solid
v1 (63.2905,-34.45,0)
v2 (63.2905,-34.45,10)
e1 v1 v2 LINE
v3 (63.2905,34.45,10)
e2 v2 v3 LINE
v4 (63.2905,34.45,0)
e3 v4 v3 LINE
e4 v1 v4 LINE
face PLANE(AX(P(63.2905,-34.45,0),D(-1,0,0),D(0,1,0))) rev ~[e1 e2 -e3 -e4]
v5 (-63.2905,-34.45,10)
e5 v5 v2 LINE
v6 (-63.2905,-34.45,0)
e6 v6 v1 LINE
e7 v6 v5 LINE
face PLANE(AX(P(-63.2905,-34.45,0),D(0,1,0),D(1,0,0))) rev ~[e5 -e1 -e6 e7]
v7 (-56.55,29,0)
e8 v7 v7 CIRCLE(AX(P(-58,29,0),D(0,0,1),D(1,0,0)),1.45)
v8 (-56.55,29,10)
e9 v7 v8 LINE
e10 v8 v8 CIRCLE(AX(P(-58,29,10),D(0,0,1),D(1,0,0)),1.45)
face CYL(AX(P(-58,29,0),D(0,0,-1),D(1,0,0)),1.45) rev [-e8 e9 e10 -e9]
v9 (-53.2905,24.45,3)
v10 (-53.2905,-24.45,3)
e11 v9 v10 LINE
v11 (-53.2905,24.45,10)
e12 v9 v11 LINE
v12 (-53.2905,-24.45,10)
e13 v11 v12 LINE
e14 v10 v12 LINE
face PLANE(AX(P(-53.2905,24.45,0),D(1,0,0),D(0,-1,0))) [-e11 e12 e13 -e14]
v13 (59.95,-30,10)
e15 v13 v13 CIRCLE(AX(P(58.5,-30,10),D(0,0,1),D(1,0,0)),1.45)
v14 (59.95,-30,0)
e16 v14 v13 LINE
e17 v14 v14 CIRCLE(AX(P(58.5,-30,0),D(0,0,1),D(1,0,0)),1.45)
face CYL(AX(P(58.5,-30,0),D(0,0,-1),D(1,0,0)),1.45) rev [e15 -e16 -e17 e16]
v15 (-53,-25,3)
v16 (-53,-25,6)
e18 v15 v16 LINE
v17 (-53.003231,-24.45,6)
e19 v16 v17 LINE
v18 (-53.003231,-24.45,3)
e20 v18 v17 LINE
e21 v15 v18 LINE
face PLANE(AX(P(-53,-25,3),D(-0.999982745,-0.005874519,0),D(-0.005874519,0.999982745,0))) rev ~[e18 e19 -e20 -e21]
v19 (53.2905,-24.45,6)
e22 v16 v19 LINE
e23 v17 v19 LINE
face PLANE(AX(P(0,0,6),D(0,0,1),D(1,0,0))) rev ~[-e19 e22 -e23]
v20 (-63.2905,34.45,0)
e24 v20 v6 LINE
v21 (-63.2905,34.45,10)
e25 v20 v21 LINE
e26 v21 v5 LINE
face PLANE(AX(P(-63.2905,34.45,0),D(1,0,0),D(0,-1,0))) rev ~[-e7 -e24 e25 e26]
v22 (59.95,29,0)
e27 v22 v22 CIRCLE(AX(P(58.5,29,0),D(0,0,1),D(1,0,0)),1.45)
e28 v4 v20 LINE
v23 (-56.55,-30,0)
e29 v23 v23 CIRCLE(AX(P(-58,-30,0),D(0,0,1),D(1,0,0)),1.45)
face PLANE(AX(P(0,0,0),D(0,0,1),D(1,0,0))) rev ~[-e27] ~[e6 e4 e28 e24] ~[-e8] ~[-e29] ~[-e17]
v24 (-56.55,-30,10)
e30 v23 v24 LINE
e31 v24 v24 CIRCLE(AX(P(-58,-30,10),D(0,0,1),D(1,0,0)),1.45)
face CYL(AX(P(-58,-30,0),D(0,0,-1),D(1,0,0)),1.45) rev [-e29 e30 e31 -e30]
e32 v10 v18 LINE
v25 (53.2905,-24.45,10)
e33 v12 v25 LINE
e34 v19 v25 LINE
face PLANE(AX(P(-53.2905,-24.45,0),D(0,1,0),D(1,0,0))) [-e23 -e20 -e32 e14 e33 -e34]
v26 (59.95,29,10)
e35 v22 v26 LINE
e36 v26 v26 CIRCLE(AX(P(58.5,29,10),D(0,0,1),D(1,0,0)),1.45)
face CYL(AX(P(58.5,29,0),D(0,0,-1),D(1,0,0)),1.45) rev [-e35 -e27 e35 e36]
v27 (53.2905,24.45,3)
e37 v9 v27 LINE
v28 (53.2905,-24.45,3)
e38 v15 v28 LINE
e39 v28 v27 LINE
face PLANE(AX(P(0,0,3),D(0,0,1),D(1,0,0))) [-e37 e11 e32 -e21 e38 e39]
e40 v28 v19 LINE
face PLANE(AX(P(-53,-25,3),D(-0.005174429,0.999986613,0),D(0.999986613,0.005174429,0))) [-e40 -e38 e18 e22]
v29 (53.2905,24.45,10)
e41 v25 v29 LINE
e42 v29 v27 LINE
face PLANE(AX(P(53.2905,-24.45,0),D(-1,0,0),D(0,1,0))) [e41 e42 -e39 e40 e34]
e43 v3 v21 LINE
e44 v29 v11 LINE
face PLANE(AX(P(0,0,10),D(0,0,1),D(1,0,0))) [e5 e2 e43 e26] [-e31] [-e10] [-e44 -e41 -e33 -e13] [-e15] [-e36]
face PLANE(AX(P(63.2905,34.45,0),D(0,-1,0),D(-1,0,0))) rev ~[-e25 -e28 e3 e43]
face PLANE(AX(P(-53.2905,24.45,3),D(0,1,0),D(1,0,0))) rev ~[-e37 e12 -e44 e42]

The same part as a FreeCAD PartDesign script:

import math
import FreeCAD as App
import Part
import Sketcher

doc = App.newDocument("Part")
params = doc.addObject("Spreadsheet::Sheet", "Params")
for row, (alias, value) in enumerate([
    ("sketch1_height", "48.9 mm"),
    ("pad1_length", "3 mm"),
    ("sketch2_diameter", "2.9 mm"),
    ("sketch2_height", "68.9 mm"),
    ("sketch2_height2", "48.9 mm"),
    ("pad2_length", "10 mm"),
    ("sketch3_diameter", "2.9 mm"),
    ("pocket1_length", "14 mm"),
    ("sketch4_diameter", "2.9 mm"),
    ("pocket2_length", "14 mm"),
    ("sketch5_diameter", "2.9 mm"),
    ("pocket3_length", "14 mm"),
    ("sketch6_diameter", "2.9 mm"),
    ("pocket4_length", "14 mm"),
    ("sketch7_width", "13 mm"),
    ("sketch7_radius", "0.5 mm"),
    ("sketch7_height", "48.9 mm"),
    ("pad3_length", "3 mm"),
    ("sketch8_width", "13 mm"),
    ("sketch8_radius", "0.5 mm"),
    ("sketch8_height", "48.9 mm"),
    ("pocket5_length", "3 mm"),
], start=1):
    params.set(f"A{row}", alias)
    params.set(f"B{row}", "=" + value)
    params.setAlias(f"B{row}", alias)

body = doc.addObject("PartDesign::Body", "Body")

sketch1 = doc.addObject("Sketcher::SketchObject", "Sketch")
body.addObject(sketch1)
sketch1.AttachmentSupport = (doc.XY_Plane, [""])
sketch1.MapMode = "FlatFace"
sketch1.addGeometry([
    Part.LineSegment(App.Vector(53, -24, 0), App.Vector(53, 24, 0)),
    Part.LineSegment(App.Vector(53, 24, 0), App.Vector(-53, 24, 0)),
    Part.LineSegment(App.Vector(-53, 24, 0), App.Vector(-53, -24, 0)),
    Part.LineSegment(App.Vector(-53, -24, 0), App.Vector(53, -24, 0)),
], False)
sketch1.addConstraint([
    Sketcher.Constraint("Coincident", 0, 2, 1, 1),
    Sketcher.Constraint("Coincident", 1, 2, 2, 1),
    Sketcher.Constraint("Coincident", 2, 2, 3, 1),
    Sketcher.Constraint("Coincident", 3, 2, 0, 1),
    Sketcher.Constraint("Vertical", 0),
    Sketcher.Constraint("Horizontal", 1),
    Sketcher.Constraint("Vertical", 2),
    Sketcher.Constraint("Horizontal", 3),
    Sketcher.Constraint("Symmetric", 0, 2, 2, 2, -1, 1),
    Sketcher.Constraint("DistanceY", 0, 1, 0, 2, 48.9),
    Sketcher.Constraint("DistanceX", 1, 2, 1, 1, 106.581),
])
sketch1.setExpression("Constraints[9]", "Params.sketch1_height")
pad1 = doc.addObject("PartDesign::Pad", "Pad")
body.addObject(pad1)
pad1.Profile = sketch1
pad1.setExpression("Length", "Params.pad1_length")

sketch2 = doc.addObject("Sketcher::SketchObject", "Sketch001")
body.addObject(sketch2)
sketch2.AttachmentSupport = (doc.XY_Plane, [""])
sketch2.MapMode = "FlatFace"
sketch2.addGeometry([
    Part.LineSegment(App.Vector(-63.3, 34.5, 0), App.Vector(-63.3, -34.5, 0)),
    Part.LineSegment(App.Vector(-63.3, -34.5, 0), App.Vector(63.3, -34.5, 0)),
    Part.LineSegment(App.Vector(63.3, -34.5, 0), App.Vector(63.3, 34.5, 0)),
    Part.LineSegment(App.Vector(63.3, 34.5, 0), App.Vector(-63.3, 34.5, 0)),
    Part.Circle(App.Vector(-58, -30, 0), App.Vector(0, 0, 1), 1.4),
    Part.Circle(App.Vector(58.5, -30, 0), App.Vector(0, 0, 1), 1.4),
    Part.Circle(App.Vector(-58, 29, 0), App.Vector(0, 0, 1), 1.4),
    Part.LineSegment(App.Vector(-53.3, 24.4, 0), App.Vector(53.3, 24.4, 0)),
    Part.LineSegment(App.Vector(53.3, 24.4, 0), App.Vector(53.3, -24.4, 0)),
    Part.LineSegment(App.Vector(53.3, -24.4, 0), App.Vector(-53.3, -24.4, 0)),
    Part.LineSegment(App.Vector(-53.3, -24.4, 0), App.Vector(-53.3, 24.4, 0)),
    Part.Circle(App.Vector(58.5, 29, 0), App.Vector(0, 0, 1), 1.4),
], False)
sketch2.addConstraint([
    Sketcher.Constraint("Coincident", 0, 2, 1, 1),
    Sketcher.Constraint("Coincident", 1, 2, 2, 1),
    Sketcher.Constraint("Coincident", 2, 2, 3, 1),
    Sketcher.Constraint("Coincident", 3, 2, 0, 1),
    Sketcher.Constraint("Coincident", 7, 2, 8, 1),
    Sketcher.Constraint("Coincident", 8, 2, 9, 1),
    Sketcher.Constraint("Coincident", 9, 2, 10, 1),
    Sketcher.Constraint("Coincident", 10, 2, 7, 1),
    Sketcher.Constraint("Vertical", 0),
    Sketcher.Constraint("Horizontal", 1),
    Sketcher.Constraint("Vertical", 2),
    Sketcher.Constraint("Horizontal", 3),
    Sketcher.Constraint("Horizontal", 7),
    Sketcher.Constraint("Vertical", 8),
    Sketcher.Constraint("Horizontal", 9),
    Sketcher.Constraint("Vertical", 10),
    Sketcher.Constraint("Equal", 4, 5),
    Sketcher.Constraint("Equal", 5, 6),
    Sketcher.Constraint("Equal", 6, 11),
    Sketcher.Constraint("Symmetric", 0, 2, 2, 2, -1, 1),
    Sketcher.Constraint("Symmetric", 7, 2, 9, 2, -1, 1),
    Sketcher.Constraint("Horizontal", 4, 3, 5, 3),
    Sketcher.Constraint("Horizontal", 6, 3, 11, 3),
    Sketcher.Constraint("Vertical", 4, 3, 6, 3),
    Sketcher.Constraint("Vertical", 5, 3, 11, 3),
    Sketcher.Constraint("Diameter", 4, 2.9),
    Sketcher.Constraint("DistanceY", 0, 2, 0, 1, 68.9),
    Sketcher.Constraint("DistanceY", 8, 2, 8, 1, 48.9),
    Sketcher.Constraint("DistanceX", 7, 2, 2, 2, 10.0),
    Sketcher.Constraint("DistanceX", 1, 1, 1, 2, 126.581),
    Sketcher.Constraint("DistanceX", 4, 3, -1, 1, 58.0),
    Sketcher.Constraint("DistanceY", 4, 3, -1, 1, 30.0),
    Sketcher.Constraint("DistanceY", -1, 1, 6, 3, 29.0),
    Sketcher.Constraint("DistanceX", -1, 1, 5, 3, 58.5),
])
sketch2.setExpression("Constraints[25]", "Params.sketch2_diameter")
sketch2.setExpression("Constraints[26]", "Params.sketch2_height")
sketch2.setExpression("Constraints[27]", "Params.sketch2_height2")
pad2 = doc.addObject("PartDesign::Pad", "Pad001")
body.addObject(pad2)
pad2.Profile = sketch2
pad2.setExpression("Length", "Params.pad2_length")

sketch3 = doc.addObject("Sketcher::SketchObject", "Sketch002")
body.addObject(sketch3)
sketch3.AttachmentSupport = (doc.XY_Plane, [""])
sketch3.MapMode = "FlatFace"
sketch3.addGeometry(Part.Circle(App.Vector(-58, 29, 0), App.Vector(0, 0, 1), 1.4), False)
sketch3.addConstraint([
    Sketcher.Constraint("Diameter", 0, 2.9),
    Sketcher.Constraint("DistanceX", 0, 3, -1, 1, 58.0),
    Sketcher.Constraint("DistanceY", -1, 1, 0, 3, 29.0),
])
sketch3.setExpression("Constraints[0]", "Params.sketch3_diameter")
pocket1 = doc.addObject("PartDesign::Pocket", "Pocket")
body.addObject(pocket1)
pocket1.Profile = sketch3
pocket1.setExpression("Length", "Params.pocket1_length")
pocket1.Reversed = True

sketch4 = doc.addObject("Sketcher::SketchObject", "Sketch003")
body.addObject(sketch4)
sketch4.AttachmentSupport = (doc.XY_Plane, [""])
sketch4.MapMode = "FlatFace"
sketch4.addGeometry(Part.Circle(App.Vector(-58, -30, 0), App.Vector(0, 0, 1), 1.4), False)
sketch4.addConstraint([
    Sketcher.Constraint("Diameter", 0, 2.9),
    Sketcher.Constraint("DistanceX", 0, 3, -1, 1, 58.0),
    Sketcher.Constraint("DistanceY", 0, 3, -1, 1, 30.0),
])
sketch4.setExpression("Constraints[0]", "Params.sketch4_diameter")
pocket2 = doc.addObject("PartDesign::Pocket", "Pocket001")
body.addObject(pocket2)
pocket2.Profile = sketch4
pocket2.setExpression("Length", "Params.pocket2_length")
pocket2.Reversed = True

sketch5 = doc.addObject("Sketcher::SketchObject", "Sketch004")
body.addObject(sketch5)
sketch5.AttachmentSupport = (doc.XY_Plane, [""])
sketch5.MapMode = "FlatFace"
sketch5.addGeometry(Part.Circle(App.Vector(58.5, -30, 0), App.Vector(0, 0, 1), 1.4), False)
sketch5.addConstraint([
    Sketcher.Constraint("Diameter", 0, 2.9),
    Sketcher.Constraint("DistanceY", 0, 3, -1, 1, 30.0),
    Sketcher.Constraint("DistanceX", -1, 1, 0, 3, 58.5),
])
sketch5.setExpression("Constraints[0]", "Params.sketch5_diameter")
pocket3 = doc.addObject("PartDesign::Pocket", "Pocket002")
body.addObject(pocket3)
pocket3.Profile = sketch5
pocket3.setExpression("Length", "Params.pocket3_length")
pocket3.Reversed = True

sketch6 = doc.addObject("Sketcher::SketchObject", "Sketch005")
body.addObject(sketch6)
sketch6.AttachmentSupport = (doc.XY_Plane, [""])
sketch6.MapMode = "FlatFace"
sketch6.addGeometry(Part.Circle(App.Vector(58.5, 29, 0), App.Vector(0, 0, 1), 1.4), False)
sketch6.addConstraint([
    Sketcher.Constraint("Diameter", 0, 2.9),
    Sketcher.Constraint("DistanceY", -1, 1, 0, 3, 29.0),
    Sketcher.Constraint("DistanceX", -1, 1, 0, 3, 58.5),
])
sketch6.setExpression("Constraints[0]", "Params.sketch6_diameter")
pocket4 = doc.addObject("PartDesign::Pocket", "Pocket003")
body.addObject(pocket4)
pocket4.Profile = sketch6
pocket4.setExpression("Length", "Params.pocket4_length")
pocket4.Reversed = True

sketch7 = doc.addObject("Sketcher::SketchObject", "Sketch006")
body.addObject(sketch7)
sketch7.AttachmentSupport = (doc.XY_Plane, [""])
sketch7.MapMode = "FlatFace"
sketch7.AttachmentOffset = App.Placement(App.Vector(0, 0, 3), App.Rotation())
sketch7.addGeometry([
    Part.LineSegment(App.Vector(-53.29, 24.45, 0), App.Vector(-53, -25, 0)),
    Part.LineSegment(App.Vector(-53, -25, 0), App.Vector(53.29, -24.45, 0)),
    Part.LineSegment(App.Vector(53.29, -24.45, 0), App.Vector(53.29, 24.45, 0)),
    Part.LineSegment(App.Vector(53.29, 24.45, 0), App.Vector(-53.29, 24.45, 0)),
    Part.ArcOfCircle(Part.Circle(App.Vector(-24.26, 6.46, 0), App.Vector(0, 0, 1), 0.5), math.radians(90), math.radians(180)),
    Part.LineSegment(App.Vector(-24.26, 6.96, 0), App.Vector(-11.26, 6.96, 0)),
    Part.ArcOfCircle(Part.Circle(App.Vector(-11.26, 6.46, 0), App.Vector(0, 0, 1), 0.5), math.radians(0), math.radians(90)),
    Part.LineSegment(App.Vector(-10.76, 6.46, 0), App.Vector(-10.76, -6.54, 0)),
    Part.ArcOfCircle(Part.Circle(App.Vector(-11.26, -6.54, 0), App.Vector(0, 0, 1), 0.5), math.radians(-90), math.radians(0)),
    Part.LineSegment(App.Vector(-11.26, -7.04, 0), App.Vector(-24.26, -7.04, 0)),
    Part.ArcOfCircle(Part.Circle(App.Vector(-24.26, -6.54, 0), App.Vector(0, 0, 1), 0.5), math.radians(180), math.radians(270)),
    Part.LineSegment(App.Vector(-24.76, -6.54, 0), App.Vector(-24.76, 6.46, 0)),
    Part.ArcOfCircle(Part.Circle(App.Vector(-5.21, 6.46, 0), App.Vector(0, 0, 1), 0.5), math.radians(90), math.radians(180)),
    Part.LineSegment(App.Vector(-5.21, 6.96, 0), App.Vector(7.79, 6.96, 0)),
    Part.ArcOfCircle(Part.Circle(App.Vector(7.79, 6.46, 0), App.Vector(0, 0, 1), 0.5), math.radians(0), math.radians(90)),
    Part.LineSegment(App.Vector(8.29, 6.46, 0), App.Vector(8.29, -6.54, 0)),
    Part.ArcOfCircle(Part.Circle(App.Vector(7.79, -6.54, 0), App.Vector(0, 0, 1), 0.5), math.radians(-90), math.radians(0)),
    Part.LineSegment(App.Vector(7.79, -7.04, 0), App.Vector(-5.21, -7.04, 0)),
    Part.ArcOfCircle(Part.Circle(App.Vector(-5.21, -6.54, 0), App.Vector(0, 0, 1), 0.5), math.radians(180), math.radians(270)),
    Part.LineSegment(App.Vector(-5.71, -6.54, 0), App.Vector(-5.71, 6.46, 0)),
    Part.ArcOfCircle(Part.Circle(App.Vector(13.84, 6.46, 0), App.Vector(0, 0, 1), 0.5), math.radians(90), math.radians(180)),
    Part.LineSegment(App.Vector(13.84, 6.96, 0), App.Vector(26.84, 6.96, 0)),
    Part.ArcOfCircle(Part.Circle(App.Vector(26.84, 6.46, 0), App.Vector(0, 0, 1), 0.5), math.radians(0), math.radians(90)),
    Part.LineSegment(App.Vector(27.34, 6.46, 0), App.Vector(27.34, -6.54, 0)),
    Part.ArcOfCircle(Part.Circle(App.Vector(26.84, -6.54, 0), App.Vector(0, 0, 1), 0.5), math.radians(-90), math.radians(0)),
    Part.LineSegment(App.Vector(26.84, -7.04, 0), App.Vector(13.84, -7.04, 0)),
    Part.ArcOfCircle(Part.Circle(App.Vector(13.84, -6.54, 0), App.Vector(0, 0, 1), 0.5), math.radians(180), math.radians(270)),
    Part.LineSegment(App.Vector(13.34, -6.54, 0), App.Vector(13.34, 6.46, 0)),
], False)
sketch7.addConstraint([
    Sketcher.Constraint("Coincident", 0, 2, 1, 1),
    Sketcher.Constraint("Coincident", 1, 2, 2, 1),
    Sketcher.Constraint("Coincident", 2, 2, 3, 1),
    Sketcher.Constraint("Coincident", 3, 2, 0, 1),
    Sketcher.Constraint("Tangent", 4, 1, 5, 1),
    Sketcher.Constraint("Tangent", 5, 2, 6, 2),
    Sketcher.Constraint("Tangent", 6, 1, 7, 1),
    Sketcher.Constraint("Tangent", 7, 2, 8, 2),
    Sketcher.Constraint("Tangent", 8, 1, 9, 1),
    Sketcher.Constraint("Tangent", 9, 2, 10, 2),
    Sketcher.Constraint("Tangent", 10, 1, 11, 1),
    Sketcher.Constraint("Tangent", 11, 2, 4, 2),
    Sketcher.Constraint("Tangent", 12, 1, 13, 1),
    Sketcher.Constraint("Tangent", 13, 2, 14, 2),
    Sketcher.Constraint("Tangent", 14, 1, 15, 1),
    Sketcher.Constraint("Tangent", 15, 2, 16, 2),
    Sketcher.Constraint("Tangent", 16, 1, 17, 1),
    Sketcher.Constraint("Tangent", 17, 2, 18, 2),
    Sketcher.Constraint("Tangent", 18, 1, 19, 1),
    Sketcher.Constraint("Tangent", 19, 2, 12, 2),
    Sketcher.Constraint("Tangent", 20, 1, 21, 1),
    Sketcher.Constraint("Tangent", 21, 2, 22, 2),
    Sketcher.Constraint("Tangent", 22, 1, 23, 1),
    Sketcher.Constraint("Tangent", 23, 2, 24, 2),
    Sketcher.Constraint("Tangent", 24, 1, 25, 1),
    Sketcher.Constraint("Tangent", 25, 2, 26, 2),
    Sketcher.Constraint("Tangent", 26, 1, 27, 1),
    Sketcher.Constraint("Tangent", 27, 2, 20, 2),
    Sketcher.Constraint("Vertical", 2),
    Sketcher.Constraint("Horizontal", 3),
    Sketcher.Constraint("Horizontal", 5),
    Sketcher.Constraint("Vertical", 7),
    Sketcher.Constraint("Horizontal", 9),
    Sketcher.Constraint("Vertical", 11),
    Sketcher.Constraint("Horizontal", 13),
    Sketcher.Constraint("Vertical", 15),
    Sketcher.Constraint("Horizontal", 17),
    Sketcher.Constraint("Vertical", 19),
    Sketcher.Constraint("Horizontal", 21),
    Sketcher.Constraint("Vertical", 23),
    Sketcher.Constraint("Horizontal", 25),
    Sketcher.Constraint("Vertical", 27),
    Sketcher.Constraint("Equal", 4, 6),
    Sketcher.Constraint("Equal", 6, 8),
    Sketcher.Constraint("Equal", 8, 10),
    Sketcher.Constraint("Equal", 10, 12),
    Sketcher.Constraint("Equal", 12, 14),
    Sketcher.Constraint("Equal", 14, 16),
    Sketcher.Constraint("Equal", 16, 18),
    Sketcher.Constraint("Equal", 18, 20),
    Sketcher.Constraint("Equal", 20, 22),
    Sketcher.Constraint("Equal", 22, 24),
    Sketcher.Constraint("Equal", 24, 26),
    Sketcher.Constraint("Symmetric", 1, 2, 3, 2, -1, 1),
    Sketcher.Constraint("Horizontal", 6, 3, 12, 3),
    Sketcher.Constraint("Horizontal", 10, 3, 16, 3),
    Sketcher.Constraint("Horizontal", 14, 3, 20, 3),
    Sketcher.Constraint("Horizontal", 18, 3, 24, 3),
    Sketcher.Constraint("Equal", 9, 13),
    Sketcher.Constraint("Equal", 17, 21),
    Sketcher.Constraint("Equal", 25, 7),
    Sketcher.Constraint("DistanceX", 5, 1, 5, 2, 13.0),
    Sketcher.Constraint("Radius", 4, 0.5),
    Sketcher.Constraint("DistanceY", 0, 2, 3, 2, 49.45),
    Sketcher.Constraint("DistanceY", 2, 1, 2, 2, 48.9),
    Sketcher.Constraint("DistanceX", 0, 2, -1, 1, 53.0),
    Sketcher.Constraint("DistanceX", 6, 3, 20, 3, 25.1),
    Sketcher.Constraint("DistanceX", 3, 2, 3, 1, 106.581),
    Sketcher.Constraint("DistanceX", 6, 3, 12, 3, 6.05),
    Sketcher.Constraint("DistanceX", 24, 3, 1, 2, 26.449),
    Sketcher.Constraint("DistanceY", -1, 1, 4, 3, 6.4573),
])
sketch7.setExpression("Constraints[61]", "Params.sketch7_width")
sketch7.setExpression("Constraints[62]", "Params.sketch7_radius")
sketch7.setExpression("Constraints[64]", "Params.sketch7_height")
pad3 = doc.addObject("PartDesign::Pad", "Pad002")
body.addObject(pad3)
pad3.Profile = sketch7
pad3.setExpression("Length", "Params.pad3_length")

sketch8 = doc.addObject("Sketcher::SketchObject", "Sketch007")
body.addObject(sketch8)
sketch8.AttachmentSupport = (doc.XY_Plane, [""])
sketch8.MapMode = "FlatFace"
sketch8.AttachmentOffset = App.Placement(App.Vector(0, 0, 3), App.Rotation())
sketch8.addGeometry([
    Part.LineSegment(App.Vector(-53.29, 24.45, 0), App.Vector(-53, -25, 0)),
    Part.LineSegment(App.Vector(-53, -25, 0), App.Vector(53.29, -24.45, 0)),
    Part.LineSegment(App.Vector(53.29, -24.45, 0), App.Vector(53.29, 24.45, 0)),
    Part.LineSegment(App.Vector(53.29, 24.45, 0), App.Vector(-53.29, 24.45, 0)),
    Part.ArcOfCircle(Part.Circle(App.Vector(-24.26, 6.46, 0), App.Vector(0, 0, 1), 0.5), math.radians(90), math.radians(180)),
    Part.LineSegment(App.Vector(-24.26, 6.96, 0), App.Vector(-11.26, 6.96, 0)),
    Part.ArcOfCircle(Part.Circle(App.Vector(-11.26, 6.46, 0), App.Vector(0, 0, 1), 0.5), math.radians(0), math.radians(90)),
    Part.LineSegment(App.Vector(-10.76, 6.46, 0), App.Vector(-10.76, -6.54, 0)),
    Part.ArcOfCircle(Part.Circle(App.Vector(-11.26, -6.54, 0), App.Vector(0, 0, 1), 0.5), math.radians(-90), math.radians(0)),
    Part.LineSegment(App.Vector(-11.26, -7.04, 0), App.Vector(-24.26, -7.04, 0)),
    Part.ArcOfCircle(Part.Circle(App.Vector(-24.26, -6.54, 0), App.Vector(0, 0, 1), 0.5), math.radians(180), math.radians(270)),
    Part.LineSegment(App.Vector(-24.76, -6.54, 0), App.Vector(-24.76, 6.46, 0)),
    Part.ArcOfCircle(Part.Circle(App.Vector(-5.21, 6.46, 0), App.Vector(0, 0, 1), 0.5), math.radians(90), math.radians(180)),
    Part.LineSegment(App.Vector(-5.21, 6.96, 0), App.Vector(7.79, 6.96, 0)),
    Part.ArcOfCircle(Part.Circle(App.Vector(7.79, 6.46, 0), App.Vector(0, 0, 1), 0.5), math.radians(0), math.radians(90)),
    Part.LineSegment(App.Vector(8.29, 6.46, 0), App.Vector(8.29, -6.54, 0)),
    Part.ArcOfCircle(Part.Circle(App.Vector(7.79, -6.54, 0), App.Vector(0, 0, 1), 0.5), math.radians(-90), math.radians(0)),
    Part.LineSegment(App.Vector(7.79, -7.04, 0), App.Vector(-5.21, -7.04, 0)),
    Part.ArcOfCircle(Part.Circle(App.Vector(-5.21, -6.54, 0), App.Vector(0, 0, 1), 0.5), math.radians(180), math.radians(270)),
    Part.LineSegment(App.Vector(-5.71, -6.54, 0), App.Vector(-5.71, 6.46, 0)),
    Part.ArcOfCircle(Part.Circle(App.Vector(13.84, 6.46, 0), App.Vector(0, 0, 1), 0.5), math.radians(90), math.radians(180)),
    Part.LineSegment(App.Vector(13.84, 6.96, 0), App.Vector(26.84, 6.96, 0)),
    Part.ArcOfCircle(Part.Circle(App.Vector(26.84, 6.46, 0), App.Vector(0, 0, 1), 0.5), math.radians(0), math.radians(90)),
    Part.LineSegment(App.Vector(27.34, 6.46, 0), App.Vector(27.34, -6.54, 0)),
    Part.ArcOfCircle(Part.Circle(App.Vector(26.84, -6.54, 0), App.Vector(0, 0, 1), 0.5), math.radians(-90), math.radians(0)),
    Part.LineSegment(App.Vector(26.84, -7.04, 0), App.Vector(13.84, -7.04, 0)),
    Part.ArcOfCircle(Part.Circle(App.Vector(13.84, -6.54, 0), App.Vector(0, 0, 1), 0.5), math.radians(180), math.radians(270)),
    Part.LineSegment(App.Vector(13.34, -6.54, 0), App.Vector(13.34, 6.46, 0)),
], False)
sketch8.addConstraint([
    Sketcher.Constraint("Coincident", 0, 2, 1, 1),
    Sketcher.Constraint("Coincident", 1, 2, 2, 1),
    Sketcher.Constraint("Coincident", 2, 2, 3, 1),
    Sketcher.Constraint("Coincident", 3, 2, 0, 1),
    Sketcher.Constraint("Tangent", 4, 1, 5, 1),
    Sketcher.Constraint("Tangent", 5, 2, 6, 2),
    Sketcher.Constraint("Tangent", 6, 1, 7, 1),
    Sketcher.Constraint("Tangent", 7, 2, 8, 2),
    Sketcher.Constraint("Tangent", 8, 1, 9, 1),
    Sketcher.Constraint("Tangent", 9, 2, 10, 2),
    Sketcher.Constraint("Tangent", 10, 1, 11, 1),
    Sketcher.Constraint("Tangent", 11, 2, 4, 2),
    Sketcher.Constraint("Tangent", 12, 1, 13, 1),
    Sketcher.Constraint("Tangent", 13, 2, 14, 2),
    Sketcher.Constraint("Tangent", 14, 1, 15, 1),
    Sketcher.Constraint("Tangent", 15, 2, 16, 2),
    Sketcher.Constraint("Tangent", 16, 1, 17, 1),
    Sketcher.Constraint("Tangent", 17, 2, 18, 2),
    Sketcher.Constraint("Tangent", 18, 1, 19, 1),
    Sketcher.Constraint("Tangent", 19, 2, 12, 2),
    Sketcher.Constraint("Tangent", 20, 1, 21, 1),
    Sketcher.Constraint("Tangent", 21, 2, 22, 2),
    Sketcher.Constraint("Tangent", 22, 1, 23, 1),
    Sketcher.Constraint("Tangent", 23, 2, 24, 2),
    Sketcher.Constraint("Tangent", 24, 1, 25, 1),
    Sketcher.Constraint("Tangent", 25, 2, 26, 2),
    Sketcher.Constraint("Tangent", 26, 1, 27, 1),
    Sketcher.Constraint("Tangent", 27, 2, 20, 2),
    Sketcher.Constraint("Vertical", 2),
    Sketcher.Constraint("Horizontal", 3),
    Sketcher.Constraint("Horizontal", 5),
    Sketcher.Constraint("Vertical", 7),
    Sketcher.Constraint("Horizontal", 9),
    Sketcher.Constraint("Vertical", 11),
    Sketcher.Constraint("Horizontal", 13),
    Sketcher.Constraint("Vertical", 15),
    Sketcher.Constraint("Horizontal", 17),
    Sketcher.Constraint("Vertical", 19),
    Sketcher.Constraint("Horizontal", 21),
    Sketcher.Constraint("Vertical", 23),
    Sketcher.Constraint("Horizontal", 25),
    Sketcher.Constraint("Vertical", 27),
    Sketcher.Constraint("Equal", 4, 6),
    Sketcher.Constraint("Equal", 6, 8),
    Sketcher.Constraint("Equal", 8, 10),
    Sketcher.Constraint("Equal", 10, 12),
    Sketcher.Constraint("Equal", 12, 14),
    Sketcher.Constraint("Equal", 14, 16),
    Sketcher.Constraint("Equal", 16, 18),
    Sketcher.Constraint("Equal", 18, 20),
    Sketcher.Constraint("Equal", 20, 22),
    Sketcher.Constraint("Equal", 22, 24),
    Sketcher.Constraint("Equal", 24, 26),
    Sketcher.Constraint("Symmetric", 1, 2, 3, 2, -1, 1),
    Sketcher.Constraint("Horizontal", 6, 3, 12, 3),
    Sketcher.Constraint("Horizontal", 10, 3, 16, 3),
    Sketcher.Constraint("Horizontal", 14, 3, 20, 3),
    Sketcher.Constraint("Horizontal", 18, 3, 24, 3),
    Sketcher.Constraint("Equal", 9, 13),
    Sketcher.Constraint("Equal", 17, 21),
    Sketcher.Constraint("Equal", 25, 7),
    Sketcher.Constraint("DistanceX", 5, 1, 5, 2, 13.0),
    Sketcher.Constraint("Radius", 4, 0.5),
    Sketcher.Constraint("DistanceY", 0, 2, 3, 2, 49.45),
    Sketcher.Constraint("DistanceY", 2, 1, 2, 2, 48.9),
    Sketcher.Constraint("DistanceX", 0, 2, -1, 1, 53.0),
    Sketcher.Constraint("DistanceX", 6, 3, 20, 3, 25.1),
    Sketcher.Constraint("DistanceX", 3, 2, 3, 1, 106.581),
    Sketcher.Constraint("DistanceX", 6, 3, 12, 3, 6.05),
    Sketcher.Constraint("DistanceX", 24, 3, 1, 2, 26.449),
    Sketcher.Constraint("DistanceY", -1, 1, 4, 3, 6.4573),
])
sketch8.setExpression("Constraints[61]", "Params.sketch8_width")
sketch8.setExpression("Constraints[62]", "Params.sketch8_radius")
sketch8.setExpression("Constraints[64]", "Params.sketch8_height")
pocket5 = doc.addObject("PartDesign::Pocket", "Pocket004")
body.addObject(pocket5)
pocket5.Profile = sketch8
pocket5.setExpression("Length", "Params.pocket5_length")
pocket5.Reversed = True

doc.recompute()
